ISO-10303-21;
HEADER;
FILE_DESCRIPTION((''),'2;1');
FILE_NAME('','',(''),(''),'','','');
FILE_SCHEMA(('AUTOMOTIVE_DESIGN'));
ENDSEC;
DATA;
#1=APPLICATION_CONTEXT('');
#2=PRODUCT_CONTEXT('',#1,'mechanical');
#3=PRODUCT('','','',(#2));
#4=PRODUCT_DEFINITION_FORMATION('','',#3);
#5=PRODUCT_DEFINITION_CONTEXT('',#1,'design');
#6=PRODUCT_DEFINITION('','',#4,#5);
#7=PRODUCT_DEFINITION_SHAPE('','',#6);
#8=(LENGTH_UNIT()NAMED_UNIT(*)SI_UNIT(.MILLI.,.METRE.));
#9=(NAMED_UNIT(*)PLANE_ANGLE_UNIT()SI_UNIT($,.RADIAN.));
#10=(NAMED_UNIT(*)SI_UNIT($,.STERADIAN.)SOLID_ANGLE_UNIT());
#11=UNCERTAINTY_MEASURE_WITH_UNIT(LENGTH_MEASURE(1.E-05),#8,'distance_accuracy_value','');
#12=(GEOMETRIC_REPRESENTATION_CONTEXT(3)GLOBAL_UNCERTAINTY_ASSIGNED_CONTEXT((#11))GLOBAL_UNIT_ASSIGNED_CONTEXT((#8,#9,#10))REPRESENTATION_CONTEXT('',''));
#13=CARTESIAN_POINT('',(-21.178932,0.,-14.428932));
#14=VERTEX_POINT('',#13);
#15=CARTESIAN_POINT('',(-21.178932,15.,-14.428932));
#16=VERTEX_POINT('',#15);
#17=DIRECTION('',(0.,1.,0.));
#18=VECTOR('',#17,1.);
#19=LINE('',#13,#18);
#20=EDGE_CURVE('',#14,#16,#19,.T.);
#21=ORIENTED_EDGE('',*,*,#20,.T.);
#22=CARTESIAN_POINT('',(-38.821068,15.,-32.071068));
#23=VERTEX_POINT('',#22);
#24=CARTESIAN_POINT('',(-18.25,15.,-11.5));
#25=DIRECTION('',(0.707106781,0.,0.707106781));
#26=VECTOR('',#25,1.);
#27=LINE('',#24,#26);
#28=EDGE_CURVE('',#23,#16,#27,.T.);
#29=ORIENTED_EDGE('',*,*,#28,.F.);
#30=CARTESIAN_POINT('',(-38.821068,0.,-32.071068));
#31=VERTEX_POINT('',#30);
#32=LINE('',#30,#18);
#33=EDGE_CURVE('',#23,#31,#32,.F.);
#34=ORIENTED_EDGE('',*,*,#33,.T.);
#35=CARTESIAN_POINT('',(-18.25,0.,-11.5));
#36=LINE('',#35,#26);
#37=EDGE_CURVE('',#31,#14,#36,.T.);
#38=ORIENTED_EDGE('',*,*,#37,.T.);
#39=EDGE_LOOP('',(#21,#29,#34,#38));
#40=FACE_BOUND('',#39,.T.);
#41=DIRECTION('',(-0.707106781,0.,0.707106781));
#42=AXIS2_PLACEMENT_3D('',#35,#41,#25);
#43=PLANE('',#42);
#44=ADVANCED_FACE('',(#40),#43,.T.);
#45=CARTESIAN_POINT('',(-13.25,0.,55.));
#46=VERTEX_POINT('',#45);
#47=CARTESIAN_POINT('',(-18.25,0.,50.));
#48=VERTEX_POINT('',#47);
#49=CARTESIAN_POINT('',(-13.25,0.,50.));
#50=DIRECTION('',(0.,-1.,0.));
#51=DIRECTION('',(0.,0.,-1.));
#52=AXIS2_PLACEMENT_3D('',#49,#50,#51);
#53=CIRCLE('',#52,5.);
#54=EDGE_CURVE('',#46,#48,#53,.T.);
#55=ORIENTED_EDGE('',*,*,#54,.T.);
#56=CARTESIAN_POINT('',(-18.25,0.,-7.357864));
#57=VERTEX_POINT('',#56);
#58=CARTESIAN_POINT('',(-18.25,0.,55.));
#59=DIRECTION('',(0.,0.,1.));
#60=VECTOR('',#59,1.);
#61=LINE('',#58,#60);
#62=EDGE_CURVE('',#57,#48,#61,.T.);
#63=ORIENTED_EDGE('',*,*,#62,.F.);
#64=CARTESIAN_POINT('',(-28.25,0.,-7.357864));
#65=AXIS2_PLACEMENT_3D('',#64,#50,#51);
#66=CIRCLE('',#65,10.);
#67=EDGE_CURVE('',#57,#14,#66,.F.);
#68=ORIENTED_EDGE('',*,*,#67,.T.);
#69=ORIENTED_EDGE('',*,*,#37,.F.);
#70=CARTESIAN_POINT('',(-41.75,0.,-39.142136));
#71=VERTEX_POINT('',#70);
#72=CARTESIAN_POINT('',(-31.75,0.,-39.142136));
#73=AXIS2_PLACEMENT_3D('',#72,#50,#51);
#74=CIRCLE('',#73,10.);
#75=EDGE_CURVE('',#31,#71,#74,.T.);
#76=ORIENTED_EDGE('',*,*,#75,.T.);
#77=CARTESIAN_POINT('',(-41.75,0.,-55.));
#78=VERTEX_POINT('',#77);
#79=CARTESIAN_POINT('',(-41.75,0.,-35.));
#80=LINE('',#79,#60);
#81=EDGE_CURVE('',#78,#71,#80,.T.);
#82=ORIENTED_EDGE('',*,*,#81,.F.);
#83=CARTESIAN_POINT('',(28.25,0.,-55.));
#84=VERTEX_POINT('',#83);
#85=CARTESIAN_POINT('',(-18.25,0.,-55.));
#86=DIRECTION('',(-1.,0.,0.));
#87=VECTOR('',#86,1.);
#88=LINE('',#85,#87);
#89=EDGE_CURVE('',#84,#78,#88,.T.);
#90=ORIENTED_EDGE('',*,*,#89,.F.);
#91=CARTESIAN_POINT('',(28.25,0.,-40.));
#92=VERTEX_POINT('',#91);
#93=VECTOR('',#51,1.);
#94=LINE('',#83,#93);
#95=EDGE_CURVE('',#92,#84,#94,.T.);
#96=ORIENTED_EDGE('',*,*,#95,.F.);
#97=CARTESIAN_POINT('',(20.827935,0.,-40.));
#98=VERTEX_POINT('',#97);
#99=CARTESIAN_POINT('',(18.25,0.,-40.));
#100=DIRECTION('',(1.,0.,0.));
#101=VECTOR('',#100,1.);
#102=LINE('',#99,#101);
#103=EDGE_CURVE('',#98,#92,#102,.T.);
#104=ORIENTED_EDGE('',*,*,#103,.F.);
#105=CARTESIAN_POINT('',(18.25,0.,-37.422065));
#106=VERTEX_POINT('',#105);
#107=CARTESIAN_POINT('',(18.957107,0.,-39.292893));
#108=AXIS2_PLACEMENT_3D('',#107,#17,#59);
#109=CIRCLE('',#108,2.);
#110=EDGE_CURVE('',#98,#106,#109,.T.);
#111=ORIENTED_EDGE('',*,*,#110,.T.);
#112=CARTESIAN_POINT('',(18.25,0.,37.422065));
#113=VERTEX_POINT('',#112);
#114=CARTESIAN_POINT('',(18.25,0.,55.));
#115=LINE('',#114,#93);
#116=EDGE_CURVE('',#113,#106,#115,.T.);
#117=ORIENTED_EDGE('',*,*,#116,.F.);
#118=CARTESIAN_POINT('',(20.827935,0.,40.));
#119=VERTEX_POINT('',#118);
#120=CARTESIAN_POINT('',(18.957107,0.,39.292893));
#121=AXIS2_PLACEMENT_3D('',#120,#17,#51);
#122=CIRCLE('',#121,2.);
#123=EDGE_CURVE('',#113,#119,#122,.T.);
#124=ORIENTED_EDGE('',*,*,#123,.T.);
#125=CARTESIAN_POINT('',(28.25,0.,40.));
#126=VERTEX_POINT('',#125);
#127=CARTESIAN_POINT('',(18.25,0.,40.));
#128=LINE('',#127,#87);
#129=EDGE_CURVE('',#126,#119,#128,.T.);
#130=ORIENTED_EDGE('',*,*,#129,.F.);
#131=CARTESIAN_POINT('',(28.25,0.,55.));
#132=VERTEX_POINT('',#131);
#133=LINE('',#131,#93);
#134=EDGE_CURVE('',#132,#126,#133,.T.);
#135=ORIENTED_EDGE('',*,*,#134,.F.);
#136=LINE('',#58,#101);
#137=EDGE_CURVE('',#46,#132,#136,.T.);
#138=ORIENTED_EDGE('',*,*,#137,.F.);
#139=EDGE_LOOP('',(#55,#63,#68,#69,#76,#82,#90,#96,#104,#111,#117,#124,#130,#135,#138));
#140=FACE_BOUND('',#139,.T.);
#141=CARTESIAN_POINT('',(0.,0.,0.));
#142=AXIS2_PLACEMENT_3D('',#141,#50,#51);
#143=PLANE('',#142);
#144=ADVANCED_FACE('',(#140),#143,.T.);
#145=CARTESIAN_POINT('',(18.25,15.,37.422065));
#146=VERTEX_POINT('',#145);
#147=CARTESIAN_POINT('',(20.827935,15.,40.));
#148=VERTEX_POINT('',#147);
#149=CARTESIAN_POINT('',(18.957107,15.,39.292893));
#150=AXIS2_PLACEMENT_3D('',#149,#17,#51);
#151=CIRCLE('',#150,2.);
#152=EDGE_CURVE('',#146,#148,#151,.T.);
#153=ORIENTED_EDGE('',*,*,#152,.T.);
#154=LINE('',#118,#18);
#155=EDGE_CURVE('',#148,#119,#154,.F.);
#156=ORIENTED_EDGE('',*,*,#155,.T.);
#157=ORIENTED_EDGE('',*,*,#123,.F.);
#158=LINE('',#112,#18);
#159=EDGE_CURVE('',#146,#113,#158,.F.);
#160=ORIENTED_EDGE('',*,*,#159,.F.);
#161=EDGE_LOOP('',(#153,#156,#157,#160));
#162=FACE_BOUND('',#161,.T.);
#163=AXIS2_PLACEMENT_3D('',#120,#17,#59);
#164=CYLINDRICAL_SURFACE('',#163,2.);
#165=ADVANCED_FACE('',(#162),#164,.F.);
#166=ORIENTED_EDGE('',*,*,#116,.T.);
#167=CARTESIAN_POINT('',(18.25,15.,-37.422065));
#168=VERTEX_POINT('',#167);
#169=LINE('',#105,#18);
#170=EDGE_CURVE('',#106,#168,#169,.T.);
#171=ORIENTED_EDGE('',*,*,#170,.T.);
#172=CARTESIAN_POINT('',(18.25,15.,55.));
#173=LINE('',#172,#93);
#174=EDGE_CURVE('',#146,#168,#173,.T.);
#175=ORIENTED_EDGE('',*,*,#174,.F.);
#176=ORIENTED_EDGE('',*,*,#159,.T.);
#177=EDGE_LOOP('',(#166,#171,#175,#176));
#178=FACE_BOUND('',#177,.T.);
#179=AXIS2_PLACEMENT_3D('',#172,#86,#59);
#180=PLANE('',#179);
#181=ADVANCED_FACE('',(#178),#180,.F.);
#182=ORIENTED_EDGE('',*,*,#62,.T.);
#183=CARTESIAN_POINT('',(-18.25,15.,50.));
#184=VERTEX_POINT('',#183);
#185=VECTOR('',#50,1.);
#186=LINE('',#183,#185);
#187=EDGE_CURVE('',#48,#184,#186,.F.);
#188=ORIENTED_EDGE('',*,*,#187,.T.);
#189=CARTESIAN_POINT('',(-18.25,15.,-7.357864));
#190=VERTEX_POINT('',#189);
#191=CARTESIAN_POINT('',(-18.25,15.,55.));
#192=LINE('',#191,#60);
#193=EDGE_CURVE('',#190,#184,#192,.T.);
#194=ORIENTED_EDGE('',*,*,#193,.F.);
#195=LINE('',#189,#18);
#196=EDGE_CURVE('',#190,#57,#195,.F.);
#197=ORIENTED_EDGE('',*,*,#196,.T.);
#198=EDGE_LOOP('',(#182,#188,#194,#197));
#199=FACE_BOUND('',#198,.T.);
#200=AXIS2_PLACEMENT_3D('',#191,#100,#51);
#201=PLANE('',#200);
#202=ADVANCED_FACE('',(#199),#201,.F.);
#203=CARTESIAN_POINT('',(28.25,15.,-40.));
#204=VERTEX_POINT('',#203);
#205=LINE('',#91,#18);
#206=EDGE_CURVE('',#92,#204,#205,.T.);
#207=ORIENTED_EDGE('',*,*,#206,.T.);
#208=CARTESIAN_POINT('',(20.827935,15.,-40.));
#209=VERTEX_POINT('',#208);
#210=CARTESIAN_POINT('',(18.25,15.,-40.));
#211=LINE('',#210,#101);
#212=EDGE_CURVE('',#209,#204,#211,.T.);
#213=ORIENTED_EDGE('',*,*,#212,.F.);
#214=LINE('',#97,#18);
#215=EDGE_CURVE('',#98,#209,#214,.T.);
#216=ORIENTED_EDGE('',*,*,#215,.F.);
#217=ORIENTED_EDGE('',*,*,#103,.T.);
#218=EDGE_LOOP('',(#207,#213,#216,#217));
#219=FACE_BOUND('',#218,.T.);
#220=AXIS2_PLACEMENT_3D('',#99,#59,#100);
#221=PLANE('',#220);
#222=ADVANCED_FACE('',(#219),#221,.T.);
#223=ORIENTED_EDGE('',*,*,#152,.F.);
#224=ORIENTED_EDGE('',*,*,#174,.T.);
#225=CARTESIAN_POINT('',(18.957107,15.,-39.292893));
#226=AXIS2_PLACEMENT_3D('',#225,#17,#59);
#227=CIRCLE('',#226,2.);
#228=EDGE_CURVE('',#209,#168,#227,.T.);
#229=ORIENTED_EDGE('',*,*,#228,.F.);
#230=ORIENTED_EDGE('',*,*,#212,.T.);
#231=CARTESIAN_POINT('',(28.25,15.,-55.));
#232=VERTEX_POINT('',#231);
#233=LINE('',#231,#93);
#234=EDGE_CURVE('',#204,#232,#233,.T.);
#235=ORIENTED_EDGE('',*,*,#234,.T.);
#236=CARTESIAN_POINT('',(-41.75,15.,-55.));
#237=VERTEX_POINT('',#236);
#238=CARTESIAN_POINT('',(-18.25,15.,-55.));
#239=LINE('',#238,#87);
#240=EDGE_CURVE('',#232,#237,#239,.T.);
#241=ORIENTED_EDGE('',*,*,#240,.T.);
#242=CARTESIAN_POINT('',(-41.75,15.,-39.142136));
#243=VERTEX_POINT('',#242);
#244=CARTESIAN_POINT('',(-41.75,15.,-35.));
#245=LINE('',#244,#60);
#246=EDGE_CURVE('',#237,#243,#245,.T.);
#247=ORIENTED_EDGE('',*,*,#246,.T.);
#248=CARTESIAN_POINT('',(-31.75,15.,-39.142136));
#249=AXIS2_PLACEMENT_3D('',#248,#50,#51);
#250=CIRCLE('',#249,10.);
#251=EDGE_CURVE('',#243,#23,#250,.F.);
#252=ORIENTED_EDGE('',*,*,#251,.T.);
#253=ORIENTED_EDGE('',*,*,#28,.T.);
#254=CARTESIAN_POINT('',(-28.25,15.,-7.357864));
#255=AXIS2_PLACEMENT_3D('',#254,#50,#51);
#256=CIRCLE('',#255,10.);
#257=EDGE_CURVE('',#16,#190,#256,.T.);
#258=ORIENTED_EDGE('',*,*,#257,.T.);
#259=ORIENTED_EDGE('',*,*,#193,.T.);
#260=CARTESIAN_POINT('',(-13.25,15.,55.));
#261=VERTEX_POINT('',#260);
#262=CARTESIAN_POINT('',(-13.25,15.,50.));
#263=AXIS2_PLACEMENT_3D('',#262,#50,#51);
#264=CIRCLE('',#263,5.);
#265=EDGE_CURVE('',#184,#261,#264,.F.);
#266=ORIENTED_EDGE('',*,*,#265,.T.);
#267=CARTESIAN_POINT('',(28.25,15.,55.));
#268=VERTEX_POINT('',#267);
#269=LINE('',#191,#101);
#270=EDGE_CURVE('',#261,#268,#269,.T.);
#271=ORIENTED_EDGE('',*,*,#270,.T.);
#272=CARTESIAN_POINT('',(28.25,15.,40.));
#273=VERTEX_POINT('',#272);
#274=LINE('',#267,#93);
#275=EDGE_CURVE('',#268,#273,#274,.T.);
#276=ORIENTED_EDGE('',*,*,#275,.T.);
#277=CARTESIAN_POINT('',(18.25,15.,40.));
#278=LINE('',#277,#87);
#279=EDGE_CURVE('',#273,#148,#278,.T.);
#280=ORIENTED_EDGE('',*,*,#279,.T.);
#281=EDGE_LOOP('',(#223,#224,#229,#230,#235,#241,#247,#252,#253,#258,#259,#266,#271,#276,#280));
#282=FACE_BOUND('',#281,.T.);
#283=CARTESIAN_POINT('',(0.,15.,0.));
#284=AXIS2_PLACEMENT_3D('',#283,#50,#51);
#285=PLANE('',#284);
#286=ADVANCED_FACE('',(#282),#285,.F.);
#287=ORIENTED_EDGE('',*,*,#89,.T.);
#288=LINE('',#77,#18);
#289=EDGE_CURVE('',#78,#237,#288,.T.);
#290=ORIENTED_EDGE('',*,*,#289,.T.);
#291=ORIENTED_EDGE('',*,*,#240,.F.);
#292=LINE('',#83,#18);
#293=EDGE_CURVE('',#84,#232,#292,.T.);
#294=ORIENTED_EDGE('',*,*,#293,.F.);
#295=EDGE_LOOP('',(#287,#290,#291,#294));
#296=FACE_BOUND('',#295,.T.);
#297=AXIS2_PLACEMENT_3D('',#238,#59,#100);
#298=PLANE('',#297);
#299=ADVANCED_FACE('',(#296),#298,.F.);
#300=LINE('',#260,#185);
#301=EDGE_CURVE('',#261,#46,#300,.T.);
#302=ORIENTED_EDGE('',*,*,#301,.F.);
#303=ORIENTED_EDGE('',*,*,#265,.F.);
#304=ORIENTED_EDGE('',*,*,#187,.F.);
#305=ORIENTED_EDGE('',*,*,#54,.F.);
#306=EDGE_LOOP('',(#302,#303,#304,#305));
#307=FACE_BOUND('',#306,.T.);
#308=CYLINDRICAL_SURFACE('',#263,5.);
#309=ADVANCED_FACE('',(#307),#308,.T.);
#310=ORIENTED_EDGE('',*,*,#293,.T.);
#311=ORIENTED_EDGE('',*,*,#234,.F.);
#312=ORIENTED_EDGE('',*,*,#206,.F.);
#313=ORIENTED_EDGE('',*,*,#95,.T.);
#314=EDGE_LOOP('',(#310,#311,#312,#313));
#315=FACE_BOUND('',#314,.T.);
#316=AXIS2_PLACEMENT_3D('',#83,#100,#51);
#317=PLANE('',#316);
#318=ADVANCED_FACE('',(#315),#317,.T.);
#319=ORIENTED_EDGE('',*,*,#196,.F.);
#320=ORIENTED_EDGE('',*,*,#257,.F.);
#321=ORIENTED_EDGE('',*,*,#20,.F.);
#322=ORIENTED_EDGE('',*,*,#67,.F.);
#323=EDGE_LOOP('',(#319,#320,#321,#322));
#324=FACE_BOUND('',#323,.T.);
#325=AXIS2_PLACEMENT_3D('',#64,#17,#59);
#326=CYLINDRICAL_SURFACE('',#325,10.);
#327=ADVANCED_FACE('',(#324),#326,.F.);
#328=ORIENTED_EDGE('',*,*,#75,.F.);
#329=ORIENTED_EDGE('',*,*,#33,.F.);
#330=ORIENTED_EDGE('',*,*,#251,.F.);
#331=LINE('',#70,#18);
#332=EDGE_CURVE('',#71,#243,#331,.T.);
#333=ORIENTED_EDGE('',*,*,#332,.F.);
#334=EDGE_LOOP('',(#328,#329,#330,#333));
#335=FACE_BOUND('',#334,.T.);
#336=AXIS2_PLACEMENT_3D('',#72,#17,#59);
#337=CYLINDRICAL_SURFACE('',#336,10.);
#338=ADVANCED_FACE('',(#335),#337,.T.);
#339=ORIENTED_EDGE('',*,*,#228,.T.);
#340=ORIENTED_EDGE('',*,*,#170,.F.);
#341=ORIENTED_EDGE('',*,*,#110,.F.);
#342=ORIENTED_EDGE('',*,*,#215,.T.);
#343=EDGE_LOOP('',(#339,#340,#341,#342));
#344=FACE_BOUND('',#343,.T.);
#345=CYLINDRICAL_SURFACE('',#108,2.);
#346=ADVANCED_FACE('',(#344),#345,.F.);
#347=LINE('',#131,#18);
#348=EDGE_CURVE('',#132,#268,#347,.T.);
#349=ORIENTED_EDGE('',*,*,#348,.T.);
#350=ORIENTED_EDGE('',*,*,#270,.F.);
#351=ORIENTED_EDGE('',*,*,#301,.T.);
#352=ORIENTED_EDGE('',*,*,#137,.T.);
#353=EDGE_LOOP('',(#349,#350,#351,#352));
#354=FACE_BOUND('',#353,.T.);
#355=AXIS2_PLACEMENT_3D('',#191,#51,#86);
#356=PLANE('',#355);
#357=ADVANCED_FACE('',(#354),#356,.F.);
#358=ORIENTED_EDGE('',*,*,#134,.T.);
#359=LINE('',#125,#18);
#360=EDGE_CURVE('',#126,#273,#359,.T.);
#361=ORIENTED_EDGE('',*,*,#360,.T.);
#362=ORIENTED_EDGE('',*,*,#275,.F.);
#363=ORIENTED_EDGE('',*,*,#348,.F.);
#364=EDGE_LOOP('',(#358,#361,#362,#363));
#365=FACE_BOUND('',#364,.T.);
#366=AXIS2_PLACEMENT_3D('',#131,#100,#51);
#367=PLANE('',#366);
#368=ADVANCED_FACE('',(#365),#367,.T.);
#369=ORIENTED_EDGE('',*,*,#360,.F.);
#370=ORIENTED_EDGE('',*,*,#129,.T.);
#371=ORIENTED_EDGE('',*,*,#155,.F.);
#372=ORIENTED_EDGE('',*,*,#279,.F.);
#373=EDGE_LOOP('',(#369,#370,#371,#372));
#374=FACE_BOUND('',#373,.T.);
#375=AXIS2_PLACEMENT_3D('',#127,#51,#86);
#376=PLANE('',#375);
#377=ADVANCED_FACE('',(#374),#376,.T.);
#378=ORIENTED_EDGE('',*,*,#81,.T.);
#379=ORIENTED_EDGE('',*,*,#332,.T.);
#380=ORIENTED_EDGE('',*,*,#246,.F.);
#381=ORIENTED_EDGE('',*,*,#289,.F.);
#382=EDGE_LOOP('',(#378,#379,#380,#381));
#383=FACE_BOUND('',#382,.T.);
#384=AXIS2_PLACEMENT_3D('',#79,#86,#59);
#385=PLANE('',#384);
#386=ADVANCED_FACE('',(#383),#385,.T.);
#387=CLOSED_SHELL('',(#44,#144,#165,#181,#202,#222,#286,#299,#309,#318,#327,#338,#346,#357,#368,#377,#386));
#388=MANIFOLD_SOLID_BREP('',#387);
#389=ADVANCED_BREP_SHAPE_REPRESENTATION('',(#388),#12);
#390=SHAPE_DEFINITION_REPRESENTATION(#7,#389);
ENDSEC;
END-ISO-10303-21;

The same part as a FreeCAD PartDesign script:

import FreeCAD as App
import Part
import Sketcher
Q = App.Units.Quantity


def edges_at(feature, points):
    """Names of the edges that pass closest to the given points."""
    edges = feature.Shape.Edges
    near = lambda p: min(range(len(edges)), key=lambda i: edges[i].distToShape(Part.Vertex(*p))[0])
    return sorted({f"Edge{near(p) + 1}" for p in points})

doc = App.newDocument("Part")
params = doc.addObject("Spreadsheet::Sheet", "Params")
for row, (alias, value) in enumerate([
    ("sketch1_height", "110 mm"),
    ("sketch1_width", "36.5 mm"),
    ("pad1_length", "15 mm"),
    ("sketch2_height", "20 mm"),
    ("sketch2_width", "23.5 mm"),
    ("pad2_length", "15 mm"),
    ("fillet_radius", "10 mm"),
    ("fillet2_radius", "5 mm"),
    ("sketch3_width", "10 mm"),
    ("sketch3_height", "15 mm"),
    ("pad3_length", "15 mm"),
    ("sketch4_diameter", "4 mm"),
], start=1):
    params.set(f"A{row}", alias)
    params.set(f"B{row}", "=" + value)
    params.setAlias(f"B{row}", alias)

body = doc.addObject("PartDesign::Body", "Body")

# Sketch on XZ plane
sketch1 = body.newObject("Sketcher::SketchObject", "Sketch")
sketch1.AttachmentSupport = (doc.getObject("XZ_Plane"), [""])
sketch1.MapMode = "FlatFace"
sketch1.addGeometry(Part.LineSegment(App.Vector(-18, -55, 0), App.Vector(-18, 55, 0)), False)
sketch1.addGeometry(Part.LineSegment(App.Vector(-18, 55, 0), App.Vector(18, 55, 0)), False)
sketch1.addGeometry(Part.LineSegment(App.Vector(18, 55, 0), App.Vector(18, -55, 0)), False)
sketch1.addGeometry(Part.LineSegment(App.Vector(18, -55, 0), App.Vector(-18, -55, 0)), False)
sketch1.addConstraint(Sketcher.Constraint("Coincident", 0, 2, 1, 1))
sketch1.addConstraint(Sketcher.Constraint("Coincident", 1, 2, 2, 1))
sketch1.addConstraint(Sketcher.Constraint("Coincident", 2, 2, 3, 1))
sketch1.addConstraint(Sketcher.Constraint("Coincident", 3, 2, 0, 1))
sketch1.addConstraint(Sketcher.Constraint("Vertical", 0))
sketch1.addConstraint(Sketcher.Constraint("Horizontal", 1))
sketch1.addConstraint(Sketcher.Constraint("Vertical", 2))
sketch1.addConstraint(Sketcher.Constraint("Horizontal", 3))
sketch1.addConstraint(Sketcher.Constraint("Symmetric", 0, 2, 2, 2, -1, 1))
sketch1.addConstraint(Sketcher.Constraint("DistanceY", 0, 1, 0, 2, Q("110 mm")))
sketch1.addConstraint(Sketcher.Constraint("DistanceX", 1, 1, 1, 2, Q("36.5 mm")))
sketch1.setExpression("Constraints[9]", "Params.sketch1_height")
sketch1.setExpression("Constraints[10]", "Params.sketch1_width")
pad1 = body.newObject("PartDesign::Pad", "Pad")
pad1.Profile = sketch1
pad1.setExpression("Length", "Params.pad1_length")
pad1.Reversed = True

# Sketch on XZ plane
sketch2 = body.newObject("Sketcher::SketchObject", "Sketch001")
sketch2.AttachmentSupport = (doc.getObject("XZ_Plane"), [""])
sketch2.MapMode = "FlatFace"
sketch2.AttachmentOffset = App.Placement(App.Vector(0, 0, -15), App.Rotation())
sketch2.addGeometry(Part.LineSegment(App.Vector(-42, -35, 0), App.Vector(-18, -12, 0)), False)
sketch2.addGeometry(Part.LineSegment(App.Vector(-18, -12, 0), App.Vector(-18, -55, 0)), False)
sketch2.addGeometry(Part.LineSegment(App.Vector(-18, -55, 0), App.Vector(-42, -55, 0)), False)
sketch2.addGeometry(Part.LineSegment(App.Vector(-42, -55, 0), App.Vector(-42, -35, 0)), False)
sketch2.addConstraint(Sketcher.Constraint("Coincident", 0, 2, 1, 1))
sketch2.addConstraint(Sketcher.Constraint("Coincident", 1, 2, 2, 1))
sketch2.addConstraint(Sketcher.Constraint("Coincident", 2, 2, 3, 1))
sketch2.addConstraint(Sketcher.Constraint("Coincident", 3, 2, 0, 1))
sketch2.addConstraint(Sketcher.Constraint("Vertical", 1))
sketch2.addConstraint(Sketcher.Constraint("Horizontal", 2))
sketch2.addConstraint(Sketcher.Constraint("Vertical", 3))
sketch2.addConstraint(Sketcher.Constraint("DistanceY", 3, 1, 3, 2, Q("20 mm")))
sketch2.addConstraint(Sketcher.Constraint("Angle", 0, Q("45 deg")))
sketch2.addConstraint(Sketcher.Constraint("DistanceX", 2, 2, 2, 1, Q("23.5 mm")))
sketch2.addConstraint(Sketcher.Constraint("DistanceY", 1, 2, -1, 1, Q("55 mm")))
sketch2.addConstraint(Sketcher.Constraint("DistanceX", 0, 2, -1, 1, Q("18.25 mm")))
sketch2.setExpression("Constraints[7]", "Params.sketch2_height")
sketch2.setExpression("Constraints[9]", "Params.sketch2_width")
pad2 = body.newObject("PartDesign::Pad", "Pad001")
pad2.Profile = sketch2
pad2.setExpression("Length", "Params.pad2_length")
doc.recompute()

fillet = body.newObject("PartDesign::Fillet", "Fillet")
fillet.Base = (pad2, edges_at(pad2, [(-18.25, 7.5, -11.5), (-41.75, 7.5, -35)]))
fillet.setExpression("Radius", "Params.fillet_radius")
doc.recompute()

fillet2 = body.newObject("PartDesign::Fillet", "Fillet001")
fillet2.Base = (fillet, edges_at(fillet, [(-18.25, 7.5, 55)]))
fillet2.setExpression("Radius", "Params.fillet2_radius")

# Sketch on XZ plane
sketch3 = body.newObject("Sketcher::SketchObject", "Sketch002")
sketch3.AttachmentSupport = (doc.getObject("XZ_Plane"), [""])
sketch3.MapMode = "FlatFace"
sketch3.AttachmentOffset = App.Placement(App.Vector(0, 0, -15), App.Rotation())
sketch3.addGeometry(Part.LineSegment(App.Vector(18, 40, 0), App.Vector(18, 55, 0)), False)
sketch3.addGeometry(Part.LineSegment(App.Vector(18, 55, 0), App.Vector(28, 55, 0)), False)
sketch3.addGeometry(Part.LineSegment(App.Vector(28, 55, 0), App.Vector(28, 40, 0)), False)
sketch3.addGeometry(Part.LineSegment(App.Vector(28, 40, 0), App.Vector(18, 40, 0)), False)
sketch3.addGeometry(Part.LineSegment(App.Vector(18, -55, 0), App.Vector(18, -40, 0)), False)
sketch3.addGeometry(Part.LineSegment(App.Vector(18, -40, 0), App.Vector(28, -40, 0)), False)
sketch3.addGeometry(Part.LineSegment(App.Vector(28, -40, 0), App.Vector(28, -55, 0)), False)
sketch3.addGeometry(Part.LineSegment(App.Vector(28, -55, 0), App.Vector(18, -55, 0)), False)
sketch3.addConstraint(Sketcher.Constraint("Coincident", 0, 2, 1, 1))
sketch3.addConstraint(Sketcher.Constraint("Coincident", 1, 2, 2, 1))
sketch3.addConstraint(Sketcher.Constraint("Coincident", 2, 2, 3, 1))
sketch3.addConstraint(Sketcher.Constraint("Coincident", 3, 2, 0, 1))
sketch3.addConstraint(Sketcher.Constraint("Coincident", 4, 2, 5, 1))
sketch3.addConstraint(Sketcher.Constraint("Coincident", 5, 2, 6, 1))
sketch3.addConstraint(Sketcher.Constraint("Coincident", 6, 2, 7, 1))
sketch3.addConstraint(Sketcher.Constraint("Coincident", 7, 2, 4, 1))
sketch3.addConstraint(Sketcher.Constraint("Vertical", 0))
sketch3.addConstraint(Sketcher.Constraint("Horizontal", 1))
sketch3.addConstraint(Sketcher.Constraint("Vertical", 2))
sketch3.addConstraint(Sketcher.Constraint("Horizontal", 3))
sketch3.addConstraint(Sketcher.Constraint("Vertical", 4))
sketch3.addConstraint(Sketcher.Constraint("Horizontal", 5))
sketch3.addConstraint(Sketcher.Constraint("Vertical", 6))
sketch3.addConstraint(Sketcher.Constraint("Horizontal", 7))
sketch3.addConstraint(Sketcher.Constraint("Symmetric", 3, 2, 4, 2, -1))
sketch3.addConstraint(Sketcher.Constraint("Symmetric", 1, 2, 6, 2, -1))
sketch3.addConstraint(Sketcher.Constraint("DistanceX", 1, 1, 1, 2, Q("10 mm")))
sketch3.addConstraint(Sketcher.Constraint("DistanceY", 0, 1, 0, 2, Q("15 mm")))
sketch3.addConstraint(Sketcher.Constraint("DistanceY", -1, 1, 0, 2, Q("55 mm")))
sketch3.addConstraint(Sketcher.Constraint("DistanceX", -1, 1, 0, 2, Q("18.25 mm")))
sketch3.setExpression("Constraints[18]", "Params.sketch3_width")
sketch3.setExpression("Constraints[19]", "Params.sketch3_height")
pad3 = body.newObject("PartDesign::Pad", "Pad002")
pad3.Profile = sketch3
pad3.setExpression("Length", "Params.pad3_length")

# Sketch on XZ plane
sketch4 = body.newObject("Sketcher::SketchObject", "Sketch003")
sketch4.AttachmentSupport = (doc.getObject("XZ_Plane"), [""])
sketch4.MapMode = "FlatFace"
sketch4.AttachmentOffset = App.Placement(App.Vector(0, 0, -15), App.Rotation())
sketch4.addGeometry(Part.Circle(App.Vector(19, -39.3, 0), App.Vector(0, 0, 1), 2), False)
sketch4.addGeometry(Part.Circle(App.Vector(19, 39.3, 0), App.Vector(0, 0, 1), 2), False)
sketch4.addConstraint(Sketcher.Constraint("Equal", 0, 1))
sketch4.addConstraint(Sketcher.Constraint("Symmetric", 0, 3, 1, 3, -1))
sketch4.addConstraint(Sketcher.Constraint("Diameter", 0, Q("4 mm")))
sketch4.addConstraint(Sketcher.Constraint("DistanceX", -1, 1, 0, 3, Q("18.957107 mm")))
sketch4.addConstraint(Sketcher.Constraint("DistanceY", 0, 3, -1, 1, Q("39.292893 mm")))
sketch4.setExpression("Constraints[2]", "Params.sketch4_diameter")
pocket1 = body.newObject("PartDesign::Pocket", "Pocket")
pocket1.Profile = sketch4
pocket1.Type = "ThroughAll"
pocket1.Reversed = True

doc.recompute()
